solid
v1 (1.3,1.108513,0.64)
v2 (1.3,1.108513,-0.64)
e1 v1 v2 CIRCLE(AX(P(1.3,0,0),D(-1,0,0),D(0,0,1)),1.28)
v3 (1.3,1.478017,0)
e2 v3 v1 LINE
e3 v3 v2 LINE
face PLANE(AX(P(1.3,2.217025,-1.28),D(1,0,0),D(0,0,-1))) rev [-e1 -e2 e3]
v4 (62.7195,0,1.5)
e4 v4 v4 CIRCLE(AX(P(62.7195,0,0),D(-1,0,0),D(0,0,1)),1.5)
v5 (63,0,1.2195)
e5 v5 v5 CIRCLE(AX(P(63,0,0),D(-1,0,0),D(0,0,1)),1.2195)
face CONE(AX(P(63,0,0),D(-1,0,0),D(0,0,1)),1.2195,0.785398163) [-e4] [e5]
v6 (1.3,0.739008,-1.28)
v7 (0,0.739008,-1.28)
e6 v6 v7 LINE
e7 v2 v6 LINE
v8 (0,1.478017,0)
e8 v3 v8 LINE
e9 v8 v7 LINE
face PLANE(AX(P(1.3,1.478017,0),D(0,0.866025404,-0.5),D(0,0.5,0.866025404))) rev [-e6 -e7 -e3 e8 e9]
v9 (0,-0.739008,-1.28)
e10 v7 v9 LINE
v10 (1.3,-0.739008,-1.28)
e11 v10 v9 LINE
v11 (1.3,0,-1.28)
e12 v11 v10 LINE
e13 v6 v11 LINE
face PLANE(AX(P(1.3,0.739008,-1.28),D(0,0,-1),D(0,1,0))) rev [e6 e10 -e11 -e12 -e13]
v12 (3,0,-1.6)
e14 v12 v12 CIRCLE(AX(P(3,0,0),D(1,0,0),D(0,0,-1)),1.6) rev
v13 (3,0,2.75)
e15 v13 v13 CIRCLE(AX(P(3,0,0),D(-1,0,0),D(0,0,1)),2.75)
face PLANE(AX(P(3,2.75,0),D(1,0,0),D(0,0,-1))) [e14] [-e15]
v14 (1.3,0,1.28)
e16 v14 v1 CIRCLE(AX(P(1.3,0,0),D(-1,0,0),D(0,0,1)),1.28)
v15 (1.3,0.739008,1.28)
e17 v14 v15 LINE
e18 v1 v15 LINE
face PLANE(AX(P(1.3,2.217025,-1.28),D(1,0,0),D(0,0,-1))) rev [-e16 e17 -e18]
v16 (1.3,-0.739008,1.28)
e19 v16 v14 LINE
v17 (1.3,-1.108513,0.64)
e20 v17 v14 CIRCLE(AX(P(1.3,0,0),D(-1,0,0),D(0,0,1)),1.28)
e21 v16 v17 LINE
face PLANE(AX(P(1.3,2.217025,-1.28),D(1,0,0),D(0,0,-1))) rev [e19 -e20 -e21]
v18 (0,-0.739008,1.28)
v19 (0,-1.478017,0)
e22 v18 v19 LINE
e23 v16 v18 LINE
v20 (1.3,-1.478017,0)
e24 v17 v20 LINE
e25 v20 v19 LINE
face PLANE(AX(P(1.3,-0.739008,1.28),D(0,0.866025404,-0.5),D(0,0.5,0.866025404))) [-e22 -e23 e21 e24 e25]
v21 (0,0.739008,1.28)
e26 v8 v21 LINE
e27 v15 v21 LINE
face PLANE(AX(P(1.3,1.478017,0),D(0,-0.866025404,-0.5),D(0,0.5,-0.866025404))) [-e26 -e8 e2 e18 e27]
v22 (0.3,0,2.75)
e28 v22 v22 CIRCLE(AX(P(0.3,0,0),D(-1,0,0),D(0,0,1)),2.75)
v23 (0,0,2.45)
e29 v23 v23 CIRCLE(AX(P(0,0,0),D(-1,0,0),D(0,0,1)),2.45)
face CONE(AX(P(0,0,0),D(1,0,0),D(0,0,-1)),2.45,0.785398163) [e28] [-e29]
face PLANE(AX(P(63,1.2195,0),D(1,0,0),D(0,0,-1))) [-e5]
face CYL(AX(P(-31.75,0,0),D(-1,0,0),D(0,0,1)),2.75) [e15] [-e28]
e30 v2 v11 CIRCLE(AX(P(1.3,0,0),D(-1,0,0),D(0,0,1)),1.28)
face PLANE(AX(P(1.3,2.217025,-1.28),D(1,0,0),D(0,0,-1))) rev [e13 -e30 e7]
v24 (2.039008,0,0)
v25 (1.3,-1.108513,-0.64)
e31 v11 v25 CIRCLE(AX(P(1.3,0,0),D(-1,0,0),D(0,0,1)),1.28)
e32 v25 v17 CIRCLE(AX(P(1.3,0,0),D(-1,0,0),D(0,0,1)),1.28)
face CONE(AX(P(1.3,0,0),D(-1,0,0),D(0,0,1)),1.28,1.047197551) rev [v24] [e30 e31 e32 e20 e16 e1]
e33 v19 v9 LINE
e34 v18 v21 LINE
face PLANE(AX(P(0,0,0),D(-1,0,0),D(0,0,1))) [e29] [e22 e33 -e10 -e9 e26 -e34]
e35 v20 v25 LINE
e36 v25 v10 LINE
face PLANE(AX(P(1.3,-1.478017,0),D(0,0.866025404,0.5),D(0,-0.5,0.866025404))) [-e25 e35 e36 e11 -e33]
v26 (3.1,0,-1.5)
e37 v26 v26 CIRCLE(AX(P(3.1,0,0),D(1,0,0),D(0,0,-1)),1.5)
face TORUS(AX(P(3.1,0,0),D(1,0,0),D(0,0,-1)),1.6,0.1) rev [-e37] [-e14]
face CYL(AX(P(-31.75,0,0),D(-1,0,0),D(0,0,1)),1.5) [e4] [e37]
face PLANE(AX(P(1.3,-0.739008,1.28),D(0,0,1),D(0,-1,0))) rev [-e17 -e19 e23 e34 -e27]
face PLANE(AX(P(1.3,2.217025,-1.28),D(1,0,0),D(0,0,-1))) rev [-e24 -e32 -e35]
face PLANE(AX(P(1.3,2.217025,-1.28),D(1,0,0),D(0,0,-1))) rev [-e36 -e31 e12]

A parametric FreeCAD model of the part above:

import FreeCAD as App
import Part
import Sketcher
from FreeCAD import Vector
Q = App.Units.Quantity


def edges_at(feature, points):
    """Names of the edges that pass closest to the given points."""
    edges = feature.Shape.Edges
    near = lambda p: min(range(len(edges)), key=lambda i: edges[i].distToShape(Part.Vertex(*p))[0])
    return sorted({f"Edge{near(p) + 1}" for p in points})

doc = App.newDocument("Part")
body = doc.addObject("PartDesign::Body", "Body")

sketch1 = doc.addObject("Sketcher::SketchObject", "Sketch")
body.addObject(sketch1)
sketch1.AttachmentSupport = (doc.XY_Plane, [""])
sketch1.MapMode = "FlatFace"
sketch1.addGeometry(Part.LineSegment(Vector(0, 2.45, 0), Vector(0, 0, 0)), False)
sketch1.addGeometry(Part.LineSegment(Vector(0, 0, 0), Vector(63, 0, 0)), False)
sketch1.addGeometry(Part.LineSegment(Vector(63, 0, 0), Vector(63, 1.22, 0)), False)
sketch1.addGeometry(Part.LineSegment(Vector(63, 1.22, 0), Vector(62.72, 1.5, 0)), False)
sketch1.addGeometry(Part.LineSegment(Vector(62.72, 1.5, 0), Vector(3, 1.5, 0)), False)
sketch1.addGeometry(Part.LineSegment(Vector(3, 1.5, 0), Vector(3, 2.75, 0)), False)
sketch1.addGeometry(Part.LineSegment(Vector(3, 2.75, 0), Vector(0.3, 2.75, 0)), False)
sketch1.addGeometry(Part.LineSegment(Vector(0.3, 2.75, 0), Vector(0, 2.45, 0)), False)
sketch1.addConstraint(Sketcher.Constraint("Coincident", 0, 2, 1, 1))
sketch1.addConstraint(Sketcher.Constraint("Coincident", 1, 2, 2, 1))
sketch1.addConstraint(Sketcher.Constraint("Coincident", 2, 2, 3, 1))
sketch1.addConstraint(Sketcher.Constraint("Coincident", 3, 2, 4, 1))
sketch1.addConstraint(Sketcher.Constraint("Coincident", 4, 2, 5, 1))
sketch1.addConstraint(Sketcher.Constraint("Coincident", 5, 2, 6, 1))
sketch1.addConstraint(Sketcher.Constraint("Coincident", 6, 2, 7, 1))
sketch1.addConstraint(Sketcher.Constraint("Coincident", 7, 2, 0, 1))
sketch1.addConstraint(Sketcher.Constraint("Vertical", 0))
sketch1.addConstraint(Sketcher.Constraint("Horizontal", 1))
sketch1.addConstraint(Sketcher.Constraint("Vertical", 2))
sketch1.addConstraint(Sketcher.Constraint("Horizontal", 4))
sketch1.addConstraint(Sketcher.Constraint("Vertical", 5))
sketch1.addConstraint(Sketcher.Constraint("Horizontal", 6))
sketch1.addConstraint(Sketcher.Constraint("Coincident", 0, 2, -1, 1))
sketch1.addConstraint(Sketcher.Constraint("Perpendicular", 3, 7))
sketch1.addConstraint(Sketcher.Constraint("DistanceX", 1, 1, 1, 2, Q("63 mm")))
sketch1.addConstraint(Sketcher.Constraint("Angle", 3, Q("135 deg")))
sketch1.addConstraint(Sketcher.Constraint("DistanceX", 6, 2, 6, 1, Q("2.7 mm")))
sketch1.addConstraint(Sketcher.Constraint("DistanceX", -1, 1, 4, 2, Q("3 mm")))
sketch1.addConstraint(Sketcher.Constraint("DistanceY", 0, 2, 0, 1, Q("2.45 mm")))
sketch1.addConstraint(Sketcher.Constraint("DistanceY", 5, 1, 5, 2, Q("1.25 mm")))
sketch1.addConstraint(Sketcher.Constraint("DistanceX", 4, 2, 4, 1, Q("59.7195 mm")))
revolution = doc.addObject("PartDesign::Revolution", "Revolution")
body.addObject(revolution)
revolution.Profile = sketch1
revolution.ReferenceAxis = (sketch1, ["H_Axis"])
revolution.Angle = 360
doc.recompute()

fillet = doc.addObject("PartDesign::Fillet", "Fillet")
body.addObject(fillet)
fillet.Base = (revolution, edges_at(revolution, [(3, 0, -1.5)]))
fillet.Radius = 0.1

sketch2 = doc.addObject("Sketcher::SketchObject", "Sketch001")
body.addObject(sketch2)
sketch2.AttachmentSupport = (doc.XY_Plane, [""])
sketch2.MapMode = "FlatFace"
sketch2.addGeometry(Part.LineSegment(Vector(1.3, 1.3, 0), Vector(0, 1.3, 0)), False)
sketch2.addGeometry(Part.LineSegment(Vector(0, 1.3, 0), Vector(0, 0, 0)), False)
sketch2.addGeometry(Part.LineSegment(Vector(0, 0, 0), Vector(2, 0, 0)), False)
sketch2.addGeometry(Part.LineSegment(Vector(2, 0, 0), Vector(1.3, 1.3, 0)), False)
sketch2.addConstraint(Sketcher.Constraint("Coincident", 0, 2, 1, 1))
sketch2.addConstraint(Sketcher.Constraint("Coincident", 1, 2, 2, 1))
sketch2.addConstraint(Sketcher.Constraint("Coincident", 2, 2, 3, 1))
sketch2.addConstraint(Sketcher.Constraint("Coincident", 3, 2, 0, 1))
sketch2.addConstraint(Sketcher.Constraint("Horizontal", 0))
sketch2.addConstraint(Sketcher.Constraint("Vertical", 1))
sketch2.addConstraint(Sketcher.Constraint("Horizontal", 2))
sketch2.addConstraint(Sketcher.Constraint("Coincident", 1, 2, -1, 1))
sketch2.addConstraint(Sketcher.Constraint("Angle", 3, Q("120 deg")))
sketch2.addConstraint(Sketcher.Constraint("DistanceX", 0, 2, 0, 1, Q("1.3 mm")))
sketch2.addConstraint(Sketcher.Constraint("DistanceY", 1, 2, 1, 1, Q("1.28 mm")))
groove = doc.addObject("PartDesign::Groove", "Groove")
body.addObject(groove)
groove.Profile = sketch2
groove.ReferenceAxis = (sketch2, ["H_Axis"])
groove.Angle = 360

sketch3 = doc.addObject("Sketcher::SketchObject", "Sketch002")
body.addObject(sketch3)
sketch3.AttachmentSupport = (doc.YZ_Plane, [""])
sketch3.MapMode = "FlatFace"
sketch3.addGeometry(Part.LineSegment(Vector(1.5, 0, 0), Vector(0.7, -1.3, 0)), False)
sketch3.addGeometry(Part.LineSegment(Vector(0.7, -1.3, 0), Vector(-0.7, -1.3, 0)), False)
sketch3.addGeometry(Part.LineSegment(Vector(-0.7, -1.3, 0), Vector(-1.5, 0, 0)), False)
sketch3.addGeometry(Part.LineSegment(Vector(-1.5, 0, 0), Vector(-0.7, 1.3, 0)), False)
sketch3.addGeometry(Part.LineSegment(Vector(-0.7, 1.3, 0), Vector(0.7, 1.3, 0)), False)
sketch3.addGeometry(Part.LineSegment(Vector(0.7, 1.3, 0), Vector(1.5, 0, 0)), False)
sketch3.addConstraint(Sketcher.Constraint("Coincident", 0, 2, 1, 1))
sketch3.addConstraint(Sketcher.Constraint("Coincident", 1, 2, 2, 1))
sketch3.addConstraint(Sketcher.Constraint("Coincident", 2, 2, 3, 1))
sketch3.addConstraint(Sketcher.Constraint("Coincident", 3, 2, 4, 1))
sketch3.addConstraint(Sketcher.Constraint("Coincident", 4, 2, 5, 1))
sketch3.addConstraint(Sketcher.Constraint("Coincident", 5, 2, 0, 1))
sketch3.addConstraint(Sketcher.Constraint("Horizontal", 1))
sketch3.addConstraint(Sketcher.Constraint("Horizontal", 4))
sketch3.addConstraint(Sketcher.Constraint("Symmetric", 0, 2, 3, 2, -1, 1))
sketch3.addConstraint(Sketcher.Constraint("Symmetric", 2, 2, 5, 2, -1, 1))
sketch3.addConstraint(Sketcher.Constraint("PointOnObject", 2, 2, -1))
sketch3.addConstraint(Sketcher.Constraint("Parallel", 2, 5))
sketch3.addConstraint(Sketcher.Constraint("Vertical", 1, 2, 3, 2))
sketch3.addConstraint(Sketcher.Constraint("Angle", 0, Q("-120 deg")))
sketch3.addConstraint(Sketcher.Constraint("DistanceY", 0, 2, -1, 1, Q("1.28 mm")))
sketch3.addConstraint(Sketcher.Constraint("DistanceX", 1, 2, 1, 1, Q("1.478017 mm")))
pocket1 = doc.addObject("PartDesign::Pocket", "Pocket")
body.addObject(pocket1)
pocket1.Profile = sketch3
pocket1.Length = 1.3
pocket1.Reversed = True

doc.recompute()
